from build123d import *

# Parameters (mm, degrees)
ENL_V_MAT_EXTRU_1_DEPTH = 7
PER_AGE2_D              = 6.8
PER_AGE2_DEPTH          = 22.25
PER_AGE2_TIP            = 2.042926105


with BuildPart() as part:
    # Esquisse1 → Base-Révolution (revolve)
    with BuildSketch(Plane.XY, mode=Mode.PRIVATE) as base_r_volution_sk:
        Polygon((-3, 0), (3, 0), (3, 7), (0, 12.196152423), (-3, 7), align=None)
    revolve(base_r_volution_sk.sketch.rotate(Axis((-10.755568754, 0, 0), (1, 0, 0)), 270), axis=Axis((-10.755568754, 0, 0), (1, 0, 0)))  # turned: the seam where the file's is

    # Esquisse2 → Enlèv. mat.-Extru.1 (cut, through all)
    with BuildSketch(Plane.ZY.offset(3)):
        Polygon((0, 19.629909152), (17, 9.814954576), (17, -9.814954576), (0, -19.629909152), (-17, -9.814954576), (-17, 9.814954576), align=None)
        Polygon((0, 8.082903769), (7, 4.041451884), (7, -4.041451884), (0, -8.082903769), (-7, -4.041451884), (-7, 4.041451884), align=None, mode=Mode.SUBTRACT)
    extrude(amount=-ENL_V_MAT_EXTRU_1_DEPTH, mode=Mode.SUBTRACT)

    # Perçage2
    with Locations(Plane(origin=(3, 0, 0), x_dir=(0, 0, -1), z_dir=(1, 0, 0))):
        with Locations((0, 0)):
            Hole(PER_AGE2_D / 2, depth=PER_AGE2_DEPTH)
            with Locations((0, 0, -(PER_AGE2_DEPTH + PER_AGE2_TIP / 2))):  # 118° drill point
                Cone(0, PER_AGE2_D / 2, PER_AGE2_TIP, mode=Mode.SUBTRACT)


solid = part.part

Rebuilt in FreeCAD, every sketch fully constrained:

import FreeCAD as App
import Part
import Sketcher
from FreeCAD import Vector
Q = App.Units.Quantity

doc = App.newDocument("Part")
params = doc.addObject("Spreadsheet::Sheet", "Params")
for row, (alias, value) in enumerate([
    ("sketch1_width", "6 mm"),
    ("sketch1_height", "7 mm"),
    ("revolution_angle", "360 deg"),
    ("sketch3_diameter", "6.8 mm"),
    ("hole_diameter", "6.8 mm"),
    ("hole_depth", "22.25 mm"),
], start=1):
    params.set(f"A{row}", alias)
    params.set(f"B{row}", "=" + value)
    params.setAlias(f"B{row}", alias)

body = doc.addObject("PartDesign::Body", "Body")

sketch1 = doc.addObject("Sketcher::SketchObject", "Sketch")
body.addObject(sketch1)
sketch1.AttachmentSupport = (doc.XY_Plane, [""])
sketch1.MapMode = "FlatFace"
sketch1.addGeometry(Part.LineSegment(Vector(-3, 0, 0), Vector(3, 0, 0)), False)
sketch1.addGeometry(Part.LineSegment(Vector(3, 0, 0), Vector(3, 7, 0)), False)
sketch1.addGeometry(Part.LineSegment(Vector(3, 7, 0), Vector(0, 12.196152, 0)), False)
sketch1.addGeometry(Part.LineSegment(Vector(0, 12.196152, 0), Vector(-3, 7, 0)), False)
sketch1.addGeometry(Part.LineSegment(Vector(-3, 7, 0), Vector(-3, 0, 0)), False)
sketch1.addConstraint(Sketcher.Constraint("Coincident", 0, 2, 1, 1))
sketch1.addConstraint(Sketcher.Constraint("Coincident", 1, 2, 2, 1))
sketch1.addConstraint(Sketcher.Constraint("Coincident", 2, 2, 3, 1))
sketch1.addConstraint(Sketcher.Constraint("Coincident", 3, 2, 4, 1))
sketch1.addConstraint(Sketcher.Constraint("Coincident", 4, 2, 0, 1))
sketch1.addConstraint(Sketcher.Constraint("Horizontal", 0))
sketch1.addConstraint(Sketcher.Constraint("Vertical", 1))
sketch1.addConstraint(Sketcher.Constraint("Vertical", 4))
sketch1.addConstraint(Sketcher.Constraint("Symmetric", 0, 2, 4, 2, -1, 1))
sketch1.addConstraint(Sketcher.Constraint("PointOnObject", 2, 2, -2))
sketch1.addConstraint(Sketcher.Constraint("Horizontal", 1, 2, 3, 2))
sketch1.addConstraint(Sketcher.Constraint("DistanceX", 0, 1, 0, 2, 6.0))
sketch1.addConstraint(Sketcher.Constraint("DistanceY", 1, 1, 1, 2, 7.0))
sketch1.addConstraint(Sketcher.Constraint("Angle", 2, Q("120 deg")))
sketch1.setExpression("Constraints[11]", "Params.sketch1_width")
sketch1.setExpression("Constraints[12]", "Params.sketch1_height")
revolution = doc.addObject("PartDesign::Revolution", "Revolution")
body.addObject(revolution)
revolution.Profile = sketch1
revolution.ReferenceAxis = (sketch1, ["H_Axis"])
revolution.setExpression("Angle", "Params.revolution_angle")

sketch2 = doc.addObject("Sketcher::SketchObject", "Sketch001")
body.addObject(sketch2)
sketch2.AttachmentSupport = (doc.YZ_Plane, [""])
sketch2.MapMode = "FlatFace"
sketch2.AttachmentOffset = App.Placement(Vector(0, 0, -3), App.Rotation())
sketch2.addGeometry(Part.LineSegment(Vector(9.814955, 17, 0), Vector(19.629909, 0, 0)), False)
sketch2.addGeometry(Part.LineSegment(Vector(19.629909, 0, 0), Vector(9.814955, -17, 0)), False)
sketch2.addGeometry(Part.LineSegment(Vector(9.814955, -17, 0), Vector(-9.814955, -17, 0)), False)
sketch2.addGeometry(Part.LineSegment(Vector(-9.814955, -17, 0), Vector(-19.629909, 0, 0)), False)
sketch2.addGeometry(Part.LineSegment(Vector(-19.629909, 0, 0), Vector(-9.814955, 17, 0)), False)
sketch2.addGeometry(Part.LineSegment(Vector(-9.814955, 17, 0), Vector(9.814955, 17, 0)), False)
sketch2.addGeometry(Part.LineSegment(Vector(8.082904, 0, 0), Vector(4.041452, 7, 0)), False)
sketch2.addGeometry(Part.LineSegment(Vector(4.041452, 7, 0), Vector(-4.041452, 7, 0)), False)
sketch2.addGeometry(Part.LineSegment(Vector(-4.041452, 7, 0), Vector(-8.082904, 0, 0)), False)
sketch2.addGeometry(Part.LineSegment(Vector(-8.082904, 0, 0), Vector(-4.041452, -7, 0)), False)
sketch2.addGeometry(Part.LineSegment(Vector(-4.041452, -7, 0), Vector(4.041452, -7, 0)), False)
sketch2.addGeometry(Part.LineSegment(Vector(4.041452, -7, 0), Vector(8.082904, 0, 0)), False)
sketch2.addConstraint(Sketcher.Constraint("Coincident", 0, 2, 1, 1))
sketch2.addConstraint(Sketcher.Constraint("Coincident", 1, 2, 2, 1))
sketch2.addConstraint(Sketcher.Constraint("Coincident", 2, 2, 3, 1))
sketch2.addConstraint(Sketcher.Constraint("Coincident", 3, 2, 4, 1))
sketch2.addConstraint(Sketcher.Constraint("Coincident", 4, 2, 5, 1))
sketch2.addConstraint(Sketcher.Constraint("Coincident", 5, 2, 0, 1))
sketch2.addConstraint(Sketcher.Constraint("Coincident", 6, 2, 7, 1))
sketch2.addConstraint(Sketcher.Constraint("Coincident", 7, 2, 8, 1))
sketch2.addConstraint(Sketcher.Constraint("Coincident", 8, 2, 9, 1))
sketch2.addConstraint(Sketcher.Constraint("Coincident", 9, 2, 10, 1))
sketch2.addConstraint(Sketcher.Constraint("Coincident", 10, 2, 11, 1))
sketch2.addConstraint(Sketcher.Constraint("Coincident", 11, 2, 6, 1))
sketch2.addConstraint(Sketcher.Constraint("Horizontal", 2))
sketch2.addConstraint(Sketcher.Constraint("Horizontal", 5))
sketch2.addConstraint(Sketcher.Constraint("Horizontal", 7))
sketch2.addConstraint(Sketcher.Constraint("Horizontal", 10))
sketch2.addConstraint(Sketcher.Constraint("Symmetric", 0, 2, 3, 2, -1, 1))
sketch2.addConstraint(Sketcher.Constraint("Symmetric", 1, 2, 4, 2, -1, 1))
sketch2.addConstraint(Sketcher.Constraint("Symmetric", 6, 2, 9, 2, -1, 1))
sketch2.addConstraint(Sketcher.Constraint("Symmetric", 8, 2, 11, 2, -1, 1))
sketch2.addConstraint(Sketcher.Constraint("PointOnObject", 0, 2, -1))
sketch2.addConstraint(Sketcher.Constraint("PointOnObject", 8, 2, -1))
sketch2.addConstraint(Sketcher.Constraint("Parallel", 0, 3))
sketch2.addConstraint(Sketcher.Constraint("Parallel", 3, 6))
sketch2.addConstraint(Sketcher.Constraint("Parallel", 4, 8))
sketch2.addConstraint(Sketcher.Constraint("Parallel", 8, 11))
sketch2.addConstraint(Sketcher.Constraint("Vertical", 2, 2, 4, 2))
sketch2.addConstraint(Sketcher.Constraint("Angle", 0, Q("-60 deg")))
sketch2.addConstraint(Sketcher.Constraint("DistanceY", 1, 2, -1, 1, 17.0))
sketch2.addConstraint(Sketcher.Constraint("DistanceY", -1, 1, 6, 2, 7.0))
sketch2.addConstraint(Sketcher.Constraint("DistanceX", 2, 2, 2, 1, 19.629909))
sketch2.addConstraint(Sketcher.Constraint("DistanceX", 7, 2, 7, 1, 8.082904))
pocket1 = doc.addObject("PartDesign::Pocket", "Pocket")
body.addObject(pocket1)
pocket1.Profile = sketch2
pocket1.Type = "ThroughAll"
pocket1.Reversed = True

sketch3 = doc.addObject("Sketcher::SketchObject", "Sketch002")
body.addObject(sketch3)
sketch3.AttachmentSupport = (doc.YZ_Plane, [""])
sketch3.MapMode = "FlatFace"
sketch3.AttachmentOffset = App.Placement(Vector(0, 0, 3), App.Rotation())
sketch3.addGeometry(Part.Circle(Vector(0, 0, 0), Vector(0, 0, 1), 3.4), False)
sketch3.addConstraint(Sketcher.Constraint("Coincident", 0, 3, -1, 1))
sketch3.addConstraint(Sketcher.Constraint("Diameter", 0, 6.8))
sketch3.setExpression("Constraints[1]", "Params.sketch3_diameter")
doc.recompute()
hole = doc.addObject("PartDesign::Hole", "Hole")
body.addObject(hole)
hole.Profile = sketch3
hole.ThreadType = "None"
hole.setExpression("Diameter", "Params.hole_diameter")
hole.DepthType = "Dimension"
hole.setExpression("Depth", "Params.hole_depth")
hole.DrillPoint = "Angled"
hole.DrillPointAngle = 118

doc.recompute()
